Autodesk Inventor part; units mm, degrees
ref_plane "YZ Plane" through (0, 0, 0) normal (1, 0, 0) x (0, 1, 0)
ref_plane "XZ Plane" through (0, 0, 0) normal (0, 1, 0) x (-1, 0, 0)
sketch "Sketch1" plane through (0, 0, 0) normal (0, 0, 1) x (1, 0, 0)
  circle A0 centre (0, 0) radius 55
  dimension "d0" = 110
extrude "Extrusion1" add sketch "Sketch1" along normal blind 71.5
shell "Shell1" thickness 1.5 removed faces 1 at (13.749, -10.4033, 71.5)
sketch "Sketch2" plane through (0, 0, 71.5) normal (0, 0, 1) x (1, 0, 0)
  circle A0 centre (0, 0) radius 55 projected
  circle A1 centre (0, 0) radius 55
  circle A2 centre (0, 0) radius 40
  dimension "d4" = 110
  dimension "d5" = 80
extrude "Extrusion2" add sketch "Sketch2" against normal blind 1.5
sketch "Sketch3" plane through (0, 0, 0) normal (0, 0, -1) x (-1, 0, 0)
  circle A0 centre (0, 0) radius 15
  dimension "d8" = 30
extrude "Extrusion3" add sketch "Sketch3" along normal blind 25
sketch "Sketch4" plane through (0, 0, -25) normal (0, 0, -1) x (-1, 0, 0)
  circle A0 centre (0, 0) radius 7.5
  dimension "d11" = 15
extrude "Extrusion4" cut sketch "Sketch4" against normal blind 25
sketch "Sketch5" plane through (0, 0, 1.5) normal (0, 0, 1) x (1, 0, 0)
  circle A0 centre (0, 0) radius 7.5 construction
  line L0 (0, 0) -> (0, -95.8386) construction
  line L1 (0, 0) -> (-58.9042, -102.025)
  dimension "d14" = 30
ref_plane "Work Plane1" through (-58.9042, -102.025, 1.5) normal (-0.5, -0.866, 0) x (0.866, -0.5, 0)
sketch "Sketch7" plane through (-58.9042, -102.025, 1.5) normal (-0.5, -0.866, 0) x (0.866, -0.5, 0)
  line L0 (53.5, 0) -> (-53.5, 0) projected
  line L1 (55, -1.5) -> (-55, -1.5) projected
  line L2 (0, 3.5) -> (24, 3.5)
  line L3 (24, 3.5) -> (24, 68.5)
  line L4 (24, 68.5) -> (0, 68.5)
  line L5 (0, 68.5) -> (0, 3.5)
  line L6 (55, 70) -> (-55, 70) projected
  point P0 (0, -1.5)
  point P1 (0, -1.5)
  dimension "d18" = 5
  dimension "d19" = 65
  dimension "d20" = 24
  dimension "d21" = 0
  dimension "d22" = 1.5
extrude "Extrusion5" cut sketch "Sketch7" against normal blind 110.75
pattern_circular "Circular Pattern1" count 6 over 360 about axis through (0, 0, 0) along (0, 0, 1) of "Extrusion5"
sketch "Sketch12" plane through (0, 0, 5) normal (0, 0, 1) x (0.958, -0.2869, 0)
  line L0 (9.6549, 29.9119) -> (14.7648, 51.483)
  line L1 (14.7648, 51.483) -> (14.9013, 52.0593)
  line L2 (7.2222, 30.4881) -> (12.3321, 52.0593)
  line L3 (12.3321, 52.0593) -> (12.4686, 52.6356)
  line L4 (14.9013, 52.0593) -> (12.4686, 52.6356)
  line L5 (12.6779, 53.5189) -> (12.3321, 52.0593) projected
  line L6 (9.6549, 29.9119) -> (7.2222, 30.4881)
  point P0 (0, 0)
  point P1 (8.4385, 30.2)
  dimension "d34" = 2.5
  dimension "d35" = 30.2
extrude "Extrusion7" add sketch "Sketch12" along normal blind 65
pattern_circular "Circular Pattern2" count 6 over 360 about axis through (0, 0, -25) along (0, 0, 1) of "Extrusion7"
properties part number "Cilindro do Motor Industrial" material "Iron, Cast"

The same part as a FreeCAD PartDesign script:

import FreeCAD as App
import Part
import Sketcher

V = App.Vector
Q = App.Units.Quantity


def faces_at(feature, points):
    """Names of the faces that lie closest to the given points."""
    faces = feature.Shape.Faces
    near = lambda p: min(range(len(faces)), key=lambda i: faces[i].distToShape(Part.Vertex(*p))[0])
    return sorted({f"Face{near(p) + 1}" for p in points})


def add_polygon(sketch, points):
    """Adds a closed chain of lines whose ends are joined by coincident constraints."""
    first, n = sketch.GeometryCount, len(points)
    for a, b in zip(points, points[1:] + points[:1]):
        sketch.addGeometry(Part.LineSegment(App.Vector(*a, 0), App.Vector(*b, 0)), False)
    for i in range(n):
        sketch.addConstraint(Sketcher.Constraint("Coincident", first + i, 2, first + (i + 1) % n, 1))

doc = App.newDocument("Part")
params = doc.addObject("Spreadsheet::Sheet", "Params")
for row, (alias, value) in enumerate([
    ("sketch1_diameter", "110 mm"),
    ("pad1_length", "71.5 mm"),
    ("thickness_wall", "1.5 mm"),
    ("sketch2_diameter", "110 mm"),
    ("sketch2_diameter2", "80 mm"),
    ("pad2_length", "1.5 mm"),
    ("sketch3_diameter", "30 mm"),
    ("pad3_length", "25 mm"),
    ("sketch4_diameter", "15 mm"),
    ("pocket1_length", "25 mm"),
    ("sketch5_width", "24 mm"),
    ("sketch5_height", "65 mm"),
    ("pocket2_length", "110.75 mm"),
    ("sketch6_length", "2.5 mm"),
    ("pad4_length", "65 mm"),
], start=1):
    params.set(f"A{row}", alias)
    params.set(f"B{row}", "=" + value)
    params.setAlias(f"B{row}", alias)

body = doc.addObject("PartDesign::Body", "Body")

sketch1 = body.newObject("Sketcher::SketchObject", "Sketch")
sketch1.AttachmentSupport = (doc.getObject("XY_Plane"), [""])
sketch1.MapMode = "FlatFace"
sketch1.addGeometry(Part.Circle(V(0, 0, 0), V(0, 0, 1), 55), False)
sketch1.addConstraint([
    Sketcher.Constraint("Coincident", 0, 3, -1, 1),
    Sketcher.Constraint("Diameter", 0, 110.0),
])
sketch1.setExpression("Constraints[1]", "Params.sketch1_diameter")
pad1 = body.newObject("PartDesign::Pad", "Pad")
pad1.Profile = sketch1
pad1.setExpression("Length", "Params.pad1_length")
doc.recompute()

thickness = body.newObject("PartDesign::Thickness", "Thickness")
thickness.Base = (pad1, faces_at(pad1, [(13.749, -10.403, 71.5)]))
thickness.setExpression("Value", "Params.thickness_wall")
thickness.Reversed = True
thickness.Join = "Intersection"

sketch2 = body.newObject("Sketcher::SketchObject", "Sketch001")
sketch2.AttachmentSupport = (doc.getObject("XY_Plane"), [""])
sketch2.MapMode = "FlatFace"
sketch2.AttachmentOffset = App.Placement(V(0, 0, 71.5), App.Rotation())
sketch2.addGeometry([
    Part.Circle(V(0, 0, 0), V(0, 0, 1), 55),
    Part.Circle(V(0, 0, 0), V(0, 0, 1), 40),
], False)
sketch2.addConstraint([
    Sketcher.Constraint("Coincident", 0, 3, -1, 1),
    Sketcher.Constraint("Coincident", 1, 3, -1, 1),
    Sketcher.Constraint("Diameter", 0, 110.0),
    Sketcher.Constraint("Diameter", 1, 80.0),
])
sketch2.setExpression("Constraints[2]", "Params.sketch2_diameter")
sketch2.setExpression("Constraints[3]", "Params.sketch2_diameter2")
pad2 = body.newObject("PartDesign::Pad", "Pad001")
pad2.Profile = sketch2
pad2.setExpression("Length", "Params.pad2_length")
pad2.Reversed = True

sketch3 = body.newObject("Sketcher::SketchObject", "Sketch002")
sketch3.AttachmentSupport = (doc.getObject("XY_Plane"), [""])
sketch3.MapMode = "FlatFace"
sketch3.addGeometry(Part.Circle(V(0, 0, 0), V(0, 0, 1), 15), False)
sketch3.addConstraint([
    Sketcher.Constraint("Coincident", 0, 3, -1, 1),
    Sketcher.Constraint("Diameter", 0, 30.0),
])
sketch3.setExpression("Constraints[1]", "Params.sketch3_diameter")
pad3 = body.newObject("PartDesign::Pad", "Pad002")
pad3.Profile = sketch3
pad3.setExpression("Length", "Params.pad3_length")
pad3.Reversed = True

sketch4 = body.newObject("Sketcher::SketchObject", "Sketch003")
sketch4.AttachmentSupport = (doc.getObject("XY_Plane"), [""])
sketch4.MapMode = "FlatFace"
sketch4.AttachmentOffset = App.Placement(V(0, 0, -25), App.Rotation())
sketch4.addGeometry(Part.Circle(V(0, 0, 0), V(0, 0, 1), 8), False)
sketch4.addConstraint([
    Sketcher.Constraint("Coincident", 0, 3, -1, 1),
    Sketcher.Constraint("Diameter", 0, 15.0),
])
sketch4.setExpression("Constraints[1]", "Params.sketch4_diameter")
pocket1 = body.newObject("PartDesign::Pocket", "Pocket")
pocket1.Profile = sketch4
pocket1.setExpression("Length", "Params.pocket1_length")
pocket1.Reversed = True

sketch5 = body.newObject("Sketcher::SketchObject", "Sketch004")
sketch5.Placement = App.Placement(V(-58.9042, -102.025, 1.5), App.Rotation(V(0.866025404, -0.5, 0), V(0, 0, 1), V(-0.5, -0.866025404, 0), "ZXY"))
add_polygon(sketch5, [(0, 69), (0, 4), (24, 4), (24, 69)])
sketch5.addConstraint([
    Sketcher.Constraint("Vertical", 0),
    Sketcher.Constraint("Horizontal", 1),
    Sketcher.Constraint("Vertical", 2),
    Sketcher.Constraint("Horizontal", 3),
    Sketcher.Constraint("PointOnObject", 0, 2, -2),
    Sketcher.Constraint("DistanceX", 1, 1, 1, 2, 24.0),
    Sketcher.Constraint("DistanceY", 0, 2, 0, 1, 65.0),
    Sketcher.Constraint("DistanceY", -1, 1, 0, 2, 3.5),
])
sketch5.setExpression("Constraints[9]", "Params.sketch5_width")
sketch5.setExpression("Constraints[10]", "Params.sketch5_height")
pocket2 = body.newObject("PartDesign::Pocket", "Pocket001")
pocket2.Profile = sketch5
pocket2.setExpression("Length", "Params.pocket2_length")
doc.recompute()

polarpattern = body.newObject("PartDesign::PolarPattern", "PolarPattern")
polarpattern.Originals = [pocket2]
polarpattern.Axis = (doc.getObject("Z_Axis"), [""])
polarpattern.Angle = 360
polarpattern.Occurrences = 6
body.Tip = polarpattern

sketch6 = body.newObject("Sketcher::SketchObject", "Sketch005")
sketch6.AttachmentSupport = (doc.getObject("XY_Plane"), [""])
sketch6.MapMode = "FlatFace"
sketch6.AttachmentOffset = App.Placement(V(0, 0, 5), App.Rotation())
add_polygon(sketch6, [(15.7, 27.1), (17.8, 25.9), (28.9, 45.1), (29.2, 45.6), (27, 46.8), (26.7, 46.3)])
sketch6.addConstraint([
    Sketcher.Constraint("Perpendicular", 0, 1),
    Sketcher.Constraint("Parallel", 1, 2),
    Sketcher.Constraint("Perpendicular", 2, 3),
    Sketcher.Constraint("Perpendicular", 3, 4),
    Sketcher.Constraint("Parallel", 4, 5),
    Sketcher.Constraint("Equal", 2, 4),
    Sketcher.Constraint("Distance", 0, 2.5),
    Sketcher.Constraint("Angle", 3, Q("150.0007 deg")),
    Sketcher.Constraint("Distance", 1, 22.168),
    Sketcher.Constraint("DistanceX", -1, 1, 1, 2, 28.914),
    Sketcher.Constraint("DistanceY", -1, 1, 1, 2, 45.083),
    Sketcher.Constraint("DistanceY", -1, 1, 2, 2, 45.596),
])
sketch6.setExpression("Constraints[12]", "Params.sketch6_length")
pad4 = body.newObject("PartDesign::Pad", "Pad003")
pad4.Profile = sketch6
pad4.setExpression("Length", "Params.pad4_length")
doc.recompute()

polarpattern2 = body.newObject("PartDesign::PolarPattern", "PolarPattern001")
polarpattern2.Originals = [pad4]
polarpattern2.Axis = (doc.getObject("Z_Axis"), [""])
polarpattern2.Angle = 360
polarpattern2.Occurrences = 6
body.Tip = polarpattern2

doc.recompute()
